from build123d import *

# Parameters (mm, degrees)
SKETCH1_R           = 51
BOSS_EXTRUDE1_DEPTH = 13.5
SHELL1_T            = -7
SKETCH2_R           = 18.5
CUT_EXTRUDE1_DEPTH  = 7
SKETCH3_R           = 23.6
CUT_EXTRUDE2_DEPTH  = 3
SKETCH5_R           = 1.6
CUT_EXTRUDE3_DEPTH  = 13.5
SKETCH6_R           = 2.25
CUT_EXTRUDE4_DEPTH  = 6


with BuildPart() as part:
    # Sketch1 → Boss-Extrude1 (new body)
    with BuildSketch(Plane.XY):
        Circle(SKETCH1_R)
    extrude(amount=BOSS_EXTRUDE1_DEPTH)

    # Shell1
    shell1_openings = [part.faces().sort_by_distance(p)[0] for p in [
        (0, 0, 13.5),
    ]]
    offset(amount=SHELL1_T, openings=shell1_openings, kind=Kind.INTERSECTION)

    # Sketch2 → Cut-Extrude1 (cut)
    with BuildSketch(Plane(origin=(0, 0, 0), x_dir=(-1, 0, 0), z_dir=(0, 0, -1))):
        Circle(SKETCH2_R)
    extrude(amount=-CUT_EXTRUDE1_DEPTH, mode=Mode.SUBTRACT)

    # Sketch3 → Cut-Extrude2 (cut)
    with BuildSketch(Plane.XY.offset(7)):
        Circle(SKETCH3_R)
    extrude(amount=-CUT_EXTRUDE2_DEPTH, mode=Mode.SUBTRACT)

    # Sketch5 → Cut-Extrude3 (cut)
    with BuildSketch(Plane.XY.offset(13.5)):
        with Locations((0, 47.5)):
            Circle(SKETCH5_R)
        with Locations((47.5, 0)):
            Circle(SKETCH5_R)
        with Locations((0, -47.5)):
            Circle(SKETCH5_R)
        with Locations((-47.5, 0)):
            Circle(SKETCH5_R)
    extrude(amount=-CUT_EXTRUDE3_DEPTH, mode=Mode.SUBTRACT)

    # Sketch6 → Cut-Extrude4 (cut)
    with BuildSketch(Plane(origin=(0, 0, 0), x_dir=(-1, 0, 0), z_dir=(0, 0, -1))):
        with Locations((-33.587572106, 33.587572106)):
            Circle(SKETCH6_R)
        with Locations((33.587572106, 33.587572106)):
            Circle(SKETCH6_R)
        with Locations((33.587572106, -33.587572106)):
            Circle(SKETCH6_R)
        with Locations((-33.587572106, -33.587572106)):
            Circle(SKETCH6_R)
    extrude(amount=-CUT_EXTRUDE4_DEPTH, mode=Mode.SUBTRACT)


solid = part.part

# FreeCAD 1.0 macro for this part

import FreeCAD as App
import Part
import Sketcher
from FreeCAD import Vector
Q = App.Units.Quantity


def faces_at(feature, points):
    """Names of the faces that lie closest to the given points."""
    faces = feature.Shape.Faces
    near = lambda p: min(range(len(faces)), key=lambda i: faces[i].distToShape(Part.Vertex(*p))[0])
    return sorted({f"Face{near(p) + 1}" for p in points})

doc = App.newDocument("Part")
params = doc.addObject("Spreadsheet::Sheet", "Params")
for row, (alias, value) in enumerate([
    ("sketch1_diameter", "102 mm"),
    ("pad1_length", "13.5 mm"),
    ("thickness_wall", "7 mm"),
    ("sketch2_diameter", "37 mm"),
    ("pocket1_length", "7 mm"),
    ("sketch3_diameter", "47.2 mm"),
    ("pocket2_length", "3 mm"),
    ("sketch4_diameter", "3.2 mm"),
    ("pocket3_length", "13.5 mm"),
    ("sketch5_diameter", "4.5 mm"),
    ("pocket4_length", "6 mm"),
], start=1):
    params.set(f"A{row}", alias)
    params.set(f"B{row}", "=" + value)
    params.setAlias(f"B{row}", alias)

body = doc.addObject("PartDesign::Body", "Body")

# Sketch on XY plane
sketch1 = body.newObject("Sketcher::SketchObject", "Sketch")
sketch1.AttachmentSupport = (doc.getObject("XY_Plane"), [""])
sketch1.MapMode = "FlatFace"
sketch1.addGeometry(Part.Circle(Vector(0, 0, 0), Vector(0, 0, 1), 51), False)
sketch1.addConstraint(Sketcher.Constraint("Coincident", 0, 3, -1, 1))
sketch1.addConstraint(Sketcher.Constraint("Diameter", 0, Q("102 mm")))
sketch1.setExpression("Constraints[1]", "Params.sketch1_diameter")
pad1 = body.newObject("PartDesign::Pad", "Pad")
pad1.Profile = sketch1
pad1.setExpression("Length", "Params.pad1_length")
doc.recompute()

thickness = body.newObject("PartDesign::Thickness", "Thickness")
thickness.Base = (pad1, faces_at(pad1, [(0, 0, 13.5)]))
thickness.setExpression("Value", "Params.thickness_wall")
thickness.Reversed = True
thickness.Join = "Intersection"

# Sketch on XY plane
sketch2 = body.newObject("Sketcher::SketchObject", "Sketch001")
sketch2.AttachmentSupport = (doc.getObject("XY_Plane"), [""])
sketch2.MapMode = "FlatFace"
sketch2.addGeometry(Part.Circle(Vector(0, 0, 0), Vector(0, 0, 1), 18), False)
sketch2.addConstraint(Sketcher.Constraint("Coincident", 0, 3, -1, 1))
sketch2.addConstraint(Sketcher.Constraint("Diameter", 0, Q("37 mm")))
sketch2.setExpression("Constraints[1]", "Params.sketch2_diameter")
pocket1 = body.newObject("PartDesign::Pocket", "Pocket")
pocket1.Profile = sketch2
pocket1.setExpression("Length", "Params.pocket1_length")
pocket1.Reversed = True

# Sketch on XY plane
sketch3 = body.newObject("Sketcher::SketchObject", "Sketch002")
sketch3.AttachmentSupport = (doc.getObject("XY_Plane"), [""])
sketch3.MapMode = "FlatFace"
sketch3.AttachmentOffset = App.Placement(Vector(0, 0, 7), App.Rotation())
sketch3.addGeometry(Part.Circle(Vector(0, 0, 0), Vector(0, 0, 1), 24), False)
sketch3.addConstraint(Sketcher.Constraint("Coincident", 0, 3, -1, 1))
sketch3.addConstraint(Sketcher.Constraint("Diameter", 0, Q("47.2 mm")))
sketch3.setExpression("Constraints[1]", "Params.sketch3_diameter")
pocket2 = body.newObject("PartDesign::Pocket", "Pocket001")
pocket2.Profile = sketch3
pocket2.setExpression("Length", "Params.pocket2_length")

# Sketch on XY plane
sketch4 = body.newObject("Sketcher::SketchObject", "Sketch003")
sketch4.AttachmentSupport = (doc.getObject("XY_Plane"), [""])
sketch4.MapMode = "FlatFace"
sketch4.AttachmentOffset = App.Placement(Vector(0, 0, 13.5), App.Rotation())
sketch4.addGeometry(Part.Circle(Vector(0, 47.5, 0), Vector(0, 0, 1), 1.6), False)
sketch4.addGeometry(Part.Circle(Vector(47.5, 0, 0), Vector(0, 0, 1), 1.6), False)
sketch4.addGeometry(Part.Circle(Vector(0, -47.5, 0), Vector(0, 0, 1), 1.6), False)
sketch4.addGeometry(Part.Circle(Vector(-47.5, 0, 0), Vector(0, 0, 1), 1.6), False)
sketch4.addConstraint(Sketcher.Constraint("Equal", 0, 1))
sketch4.addConstraint(Sketcher.Constraint("Equal", 1, 2))
sketch4.addConstraint(Sketcher.Constraint("Equal", 2, 3))
sketch4.addConstraint(Sketcher.Constraint("Symmetric", 0, 3, 2, 3, -1, 1))
sketch4.addConstraint(Sketcher.Constraint("Symmetric", 1, 3, 3, 3, -1, 1))
sketch4.addConstraint(Sketcher.Constraint("PointOnObject", 0, 3, -2))
sketch4.addConstraint(Sketcher.Constraint("PointOnObject", 1, 3, -1))
sketch4.addConstraint(Sketcher.Constraint("Diameter", 0, Q("3.2 mm")))
sketch4.addConstraint(Sketcher.Constraint("DistanceY", 2, 3, 0, 3, Q("95 mm")))
sketch4.addConstraint(Sketcher.Constraint("DistanceX", 3, 3, 1, 3, Q("95 mm")))
sketch4.setExpression("Constraints[7]", "Params.sketch4_diameter")
pocket3 = body.newObject("PartDesign::Pocket", "Pocket002")
pocket3.Profile = sketch4
pocket3.setExpression("Length", "Params.pocket3_length")

# Sketch on XY plane
sketch5 = body.newObject("Sketcher::SketchObject", "Sketch004")
sketch5.AttachmentSupport = (doc.getObject("XY_Plane"), [""])
sketch5.MapMode = "FlatFace"
sketch5.addGeometry(Part.Circle(Vector(33.6, 33.6, 0), Vector(0, 0, 1), 2.2), False)
sketch5.addGeometry(Part.Circle(Vector(-33.6, 33.6, 0), Vector(0, 0, 1), 2.2), False)
sketch5.addGeometry(Part.Circle(Vector(-33.6, -33.6, 0), Vector(0, 0, 1), 2.2), False)
sketch5.addGeometry(Part.Circle(Vector(33.6, -33.6, 0), Vector(0, 0, 1), 2.2), False)
sketch5.addConstraint(Sketcher.Constraint("Equal", 0, 1))
sketch5.addConstraint(Sketcher.Constraint("Equal", 1, 2))
sketch5.addConstraint(Sketcher.Constraint("Equal", 2, 3))
sketch5.addConstraint(Sketcher.Constraint("Symmetric", 0, 3, 2, 3, -1, 1))
sketch5.addConstraint(Sketcher.Constraint("Symmetric", 1, 3, 3, 3, -1, 1))
sketch5.addConstraint(Sketcher.Constraint("Symmetric", 0, 3, 1, 3, -2))
sketch5.addConstraint(Sketcher.Constraint("Diameter", 0, Q("4.5 mm")))
sketch5.addConstraint(Sketcher.Constraint("DistanceX", -1, 1, 0, 3, Q("33.587572 mm")))
sketch5.addConstraint(Sketcher.Constraint("DistanceY", -1, 1, 0, 3, Q("33.587572 mm")))
sketch5.setExpression("Constraints[6]", "Params.sketch5_diameter")
pocket4 = body.newObject("PartDesign::Pocket", "Pocket003")
pocket4.Profile = sketch5
pocket4.setExpression("Length", "Params.pocket4_length")
pocket4.Reversed = True

doc.recompute()
